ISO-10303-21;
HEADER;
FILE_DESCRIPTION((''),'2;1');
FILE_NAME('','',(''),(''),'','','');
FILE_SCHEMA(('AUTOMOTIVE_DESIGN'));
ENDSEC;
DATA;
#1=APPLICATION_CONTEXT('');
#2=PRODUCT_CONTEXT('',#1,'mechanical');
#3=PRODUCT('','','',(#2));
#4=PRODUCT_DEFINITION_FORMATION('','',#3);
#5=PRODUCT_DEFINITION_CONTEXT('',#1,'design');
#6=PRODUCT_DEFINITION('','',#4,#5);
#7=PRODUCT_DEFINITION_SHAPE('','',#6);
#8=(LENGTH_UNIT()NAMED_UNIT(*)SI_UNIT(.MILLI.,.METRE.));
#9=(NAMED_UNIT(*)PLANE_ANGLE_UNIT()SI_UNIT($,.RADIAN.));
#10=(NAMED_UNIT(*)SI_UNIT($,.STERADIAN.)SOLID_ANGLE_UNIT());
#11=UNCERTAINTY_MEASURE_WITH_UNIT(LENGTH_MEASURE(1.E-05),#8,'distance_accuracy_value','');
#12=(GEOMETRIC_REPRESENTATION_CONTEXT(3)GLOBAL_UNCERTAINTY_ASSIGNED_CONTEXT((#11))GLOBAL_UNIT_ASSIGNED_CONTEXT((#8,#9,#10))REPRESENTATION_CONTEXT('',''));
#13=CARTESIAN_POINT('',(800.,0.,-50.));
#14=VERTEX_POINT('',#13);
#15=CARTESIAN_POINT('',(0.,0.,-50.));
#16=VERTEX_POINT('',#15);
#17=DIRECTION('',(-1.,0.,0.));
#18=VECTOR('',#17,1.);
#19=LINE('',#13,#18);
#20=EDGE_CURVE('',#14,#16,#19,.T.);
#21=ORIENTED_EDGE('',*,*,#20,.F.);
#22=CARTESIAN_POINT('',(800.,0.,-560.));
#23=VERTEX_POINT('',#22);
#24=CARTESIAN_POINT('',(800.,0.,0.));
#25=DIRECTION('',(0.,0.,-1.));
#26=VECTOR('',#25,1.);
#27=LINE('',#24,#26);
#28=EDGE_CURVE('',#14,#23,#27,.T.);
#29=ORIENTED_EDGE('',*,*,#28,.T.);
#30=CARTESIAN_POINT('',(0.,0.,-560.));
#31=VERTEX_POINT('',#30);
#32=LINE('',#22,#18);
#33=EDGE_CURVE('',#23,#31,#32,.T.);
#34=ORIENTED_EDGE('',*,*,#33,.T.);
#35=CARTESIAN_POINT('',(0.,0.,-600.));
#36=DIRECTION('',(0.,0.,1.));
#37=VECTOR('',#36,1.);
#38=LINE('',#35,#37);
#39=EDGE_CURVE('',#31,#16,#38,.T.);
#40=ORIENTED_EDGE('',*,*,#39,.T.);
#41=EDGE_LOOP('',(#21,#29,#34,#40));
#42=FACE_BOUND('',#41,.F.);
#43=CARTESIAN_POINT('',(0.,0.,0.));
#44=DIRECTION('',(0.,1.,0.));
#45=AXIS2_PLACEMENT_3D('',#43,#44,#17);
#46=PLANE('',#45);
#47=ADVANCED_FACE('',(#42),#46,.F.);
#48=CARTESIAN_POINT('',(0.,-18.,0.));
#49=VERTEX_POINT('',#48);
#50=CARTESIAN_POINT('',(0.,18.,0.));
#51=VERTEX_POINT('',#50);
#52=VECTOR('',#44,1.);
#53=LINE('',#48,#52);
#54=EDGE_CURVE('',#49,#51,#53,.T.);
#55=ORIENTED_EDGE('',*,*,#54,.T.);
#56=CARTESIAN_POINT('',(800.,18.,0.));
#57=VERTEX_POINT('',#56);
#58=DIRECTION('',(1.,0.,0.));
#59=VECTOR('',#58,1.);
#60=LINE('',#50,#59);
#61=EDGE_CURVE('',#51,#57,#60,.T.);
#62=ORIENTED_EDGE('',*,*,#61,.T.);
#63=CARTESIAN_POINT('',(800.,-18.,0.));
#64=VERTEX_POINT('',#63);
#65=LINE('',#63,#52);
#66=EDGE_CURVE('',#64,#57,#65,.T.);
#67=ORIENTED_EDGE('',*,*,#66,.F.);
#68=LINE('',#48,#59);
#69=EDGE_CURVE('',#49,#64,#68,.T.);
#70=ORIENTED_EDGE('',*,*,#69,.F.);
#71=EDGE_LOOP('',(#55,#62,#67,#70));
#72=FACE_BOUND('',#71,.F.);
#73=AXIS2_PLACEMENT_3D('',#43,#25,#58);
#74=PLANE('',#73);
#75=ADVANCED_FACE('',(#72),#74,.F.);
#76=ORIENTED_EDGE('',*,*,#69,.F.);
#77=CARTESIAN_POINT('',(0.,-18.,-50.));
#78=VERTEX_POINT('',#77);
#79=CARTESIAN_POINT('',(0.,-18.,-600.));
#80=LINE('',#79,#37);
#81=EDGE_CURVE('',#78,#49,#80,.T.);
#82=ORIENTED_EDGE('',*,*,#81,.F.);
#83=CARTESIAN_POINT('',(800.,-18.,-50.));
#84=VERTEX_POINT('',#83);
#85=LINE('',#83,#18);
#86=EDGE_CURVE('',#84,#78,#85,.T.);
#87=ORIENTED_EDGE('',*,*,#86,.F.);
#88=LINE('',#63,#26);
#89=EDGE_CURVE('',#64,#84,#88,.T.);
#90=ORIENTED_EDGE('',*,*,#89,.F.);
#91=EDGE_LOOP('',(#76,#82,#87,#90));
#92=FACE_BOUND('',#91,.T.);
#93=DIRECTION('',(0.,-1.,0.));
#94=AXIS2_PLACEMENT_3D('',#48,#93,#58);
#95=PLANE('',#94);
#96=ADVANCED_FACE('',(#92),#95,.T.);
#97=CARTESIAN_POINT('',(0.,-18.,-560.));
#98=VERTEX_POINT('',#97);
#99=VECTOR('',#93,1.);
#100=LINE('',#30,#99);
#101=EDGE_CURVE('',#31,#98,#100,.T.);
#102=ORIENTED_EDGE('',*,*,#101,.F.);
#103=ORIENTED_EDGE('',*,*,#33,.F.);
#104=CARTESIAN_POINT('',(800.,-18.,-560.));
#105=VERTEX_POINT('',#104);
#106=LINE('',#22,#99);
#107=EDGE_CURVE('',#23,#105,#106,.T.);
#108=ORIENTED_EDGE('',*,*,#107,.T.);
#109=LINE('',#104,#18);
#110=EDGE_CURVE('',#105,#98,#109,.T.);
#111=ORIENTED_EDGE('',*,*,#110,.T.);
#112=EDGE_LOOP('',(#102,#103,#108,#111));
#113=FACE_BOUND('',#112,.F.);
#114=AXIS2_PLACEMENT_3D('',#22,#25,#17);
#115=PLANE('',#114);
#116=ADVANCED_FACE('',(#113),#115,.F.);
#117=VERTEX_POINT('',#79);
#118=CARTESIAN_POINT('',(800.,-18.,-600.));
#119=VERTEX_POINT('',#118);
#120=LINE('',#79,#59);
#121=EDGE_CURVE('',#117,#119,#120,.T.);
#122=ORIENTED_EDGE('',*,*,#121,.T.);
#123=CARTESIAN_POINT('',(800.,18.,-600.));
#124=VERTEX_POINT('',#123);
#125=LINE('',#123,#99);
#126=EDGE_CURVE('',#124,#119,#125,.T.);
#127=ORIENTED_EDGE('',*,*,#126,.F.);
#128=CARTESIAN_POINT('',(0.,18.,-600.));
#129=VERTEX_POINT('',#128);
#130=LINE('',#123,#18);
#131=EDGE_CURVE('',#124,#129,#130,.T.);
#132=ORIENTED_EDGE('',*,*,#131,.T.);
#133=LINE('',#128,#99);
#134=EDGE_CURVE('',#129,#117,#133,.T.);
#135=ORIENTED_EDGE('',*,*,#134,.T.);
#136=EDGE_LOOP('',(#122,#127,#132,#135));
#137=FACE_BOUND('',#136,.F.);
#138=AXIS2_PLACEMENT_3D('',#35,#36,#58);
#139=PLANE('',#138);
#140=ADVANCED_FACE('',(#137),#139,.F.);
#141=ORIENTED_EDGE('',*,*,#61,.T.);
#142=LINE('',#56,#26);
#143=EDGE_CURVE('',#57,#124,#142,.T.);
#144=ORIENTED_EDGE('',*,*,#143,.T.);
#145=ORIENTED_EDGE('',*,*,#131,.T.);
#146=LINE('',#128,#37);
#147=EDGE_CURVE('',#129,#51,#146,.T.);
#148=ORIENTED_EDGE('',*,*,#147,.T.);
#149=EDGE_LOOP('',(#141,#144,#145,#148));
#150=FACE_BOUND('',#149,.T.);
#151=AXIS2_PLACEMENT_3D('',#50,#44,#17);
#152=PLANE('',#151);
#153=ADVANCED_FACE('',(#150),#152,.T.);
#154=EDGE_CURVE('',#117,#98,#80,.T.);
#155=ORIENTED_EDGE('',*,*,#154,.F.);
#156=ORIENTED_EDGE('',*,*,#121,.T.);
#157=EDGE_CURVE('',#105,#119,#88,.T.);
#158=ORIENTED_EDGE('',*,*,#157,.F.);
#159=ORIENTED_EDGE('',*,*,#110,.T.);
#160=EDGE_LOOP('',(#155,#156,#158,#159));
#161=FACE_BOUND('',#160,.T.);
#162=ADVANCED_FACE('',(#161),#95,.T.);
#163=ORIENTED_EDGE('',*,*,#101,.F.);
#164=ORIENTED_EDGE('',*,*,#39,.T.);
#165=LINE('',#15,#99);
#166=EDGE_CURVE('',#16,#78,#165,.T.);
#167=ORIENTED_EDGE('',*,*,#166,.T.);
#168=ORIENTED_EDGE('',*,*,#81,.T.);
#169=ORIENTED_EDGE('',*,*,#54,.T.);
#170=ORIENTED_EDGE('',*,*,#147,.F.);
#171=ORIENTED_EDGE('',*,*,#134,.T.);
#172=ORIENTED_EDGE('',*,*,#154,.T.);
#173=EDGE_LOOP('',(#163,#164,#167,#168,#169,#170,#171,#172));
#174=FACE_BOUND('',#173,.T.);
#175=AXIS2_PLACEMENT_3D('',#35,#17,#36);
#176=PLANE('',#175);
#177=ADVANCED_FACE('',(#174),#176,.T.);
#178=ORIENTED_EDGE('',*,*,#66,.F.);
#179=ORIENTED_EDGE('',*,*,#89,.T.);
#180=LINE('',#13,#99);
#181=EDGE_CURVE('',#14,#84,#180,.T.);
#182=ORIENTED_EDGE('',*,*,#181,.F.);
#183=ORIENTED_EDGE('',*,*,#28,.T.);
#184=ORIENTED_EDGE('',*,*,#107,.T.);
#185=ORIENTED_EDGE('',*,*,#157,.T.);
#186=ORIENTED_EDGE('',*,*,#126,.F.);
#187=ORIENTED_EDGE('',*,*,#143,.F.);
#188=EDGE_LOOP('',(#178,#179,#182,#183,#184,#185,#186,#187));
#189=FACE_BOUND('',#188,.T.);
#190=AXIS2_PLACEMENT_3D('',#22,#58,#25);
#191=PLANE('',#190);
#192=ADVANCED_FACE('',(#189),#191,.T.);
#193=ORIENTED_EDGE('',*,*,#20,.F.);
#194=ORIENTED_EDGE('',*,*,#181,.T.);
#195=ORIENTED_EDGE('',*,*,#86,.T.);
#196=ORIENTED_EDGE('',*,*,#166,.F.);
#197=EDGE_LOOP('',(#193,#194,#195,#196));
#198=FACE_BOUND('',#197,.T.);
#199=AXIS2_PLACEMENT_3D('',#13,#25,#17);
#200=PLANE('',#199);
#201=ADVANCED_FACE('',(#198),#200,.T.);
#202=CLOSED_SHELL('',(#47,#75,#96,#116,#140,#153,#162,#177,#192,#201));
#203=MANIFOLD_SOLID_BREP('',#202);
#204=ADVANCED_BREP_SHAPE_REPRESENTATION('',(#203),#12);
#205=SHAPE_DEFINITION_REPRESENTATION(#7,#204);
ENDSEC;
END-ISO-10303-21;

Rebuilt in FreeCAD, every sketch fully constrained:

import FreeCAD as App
import Part
import Sketcher

V = App.Vector


def add_polygon(sketch, points):
    """Adds a closed chain of lines whose ends are joined by coincident constraints."""
    first, n = sketch.GeometryCount, len(points)
    for a, b in zip(points, points[1:] + points[:1]):
        sketch.addGeometry(Part.LineSegment(App.Vector(*a, 0), App.Vector(*b, 0)), False)
    for i in range(n):
        sketch.addConstraint(Sketcher.Constraint("Coincident", first + i, 2, first + (i + 1) % n, 1))

doc = App.newDocument("Part")
body = doc.addObject("PartDesign::Body", "Body")

sketch1 = body.newObject("Sketcher::SketchObject", "Sketch")
sketch1.AttachmentSupport = (doc.getObject("XZ_Plane"), [""])
sketch1.MapMode = "FlatFace"
add_polygon(sketch1, [(0, -600), (0, 0), (800, 0), (800, -600)])
sketch1.addConstraint(Sketcher.Constraint("Vertical", 0))
sketch1.addConstraint(Sketcher.Constraint("Horizontal", 1))
sketch1.addConstraint(Sketcher.Constraint("Vertical", 2))
sketch1.addConstraint(Sketcher.Constraint("Horizontal", 3))
sketch1.addConstraint(Sketcher.Constraint("Coincident", 0, 2, -1, 1))
sketch1.addConstraint(Sketcher.Constraint("DistanceX", 1, 1, 1, 2, 800.0))
sketch1.addConstraint(Sketcher.Constraint("DistanceY", 0, 1, 0, 2, 600.0))
pad1 = body.newObject("PartDesign::Pad", "Pad")
pad1.Profile = sketch1
pad1.Length = 18
pad1.Reversed = True

sketch2 = body.newObject("Sketcher::SketchObject", "Sketch001")
sketch2.AttachmentSupport = (doc.getObject("XZ_Plane"), [""])
sketch2.MapMode = "FlatFace"
add_polygon(sketch2, [(0, 0), (0, -50), (800, -50), (800, 0)])
sketch2.addConstraint(Sketcher.Constraint("Vertical", 0))
sketch2.addConstraint(Sketcher.Constraint("Horizontal", 1))
sketch2.addConstraint(Sketcher.Constraint("Vertical", 2))
sketch2.addConstraint(Sketcher.Constraint("Horizontal", 3))
sketch2.addConstraint(Sketcher.Constraint("Coincident", 3, 2, -1, 1))
sketch2.addConstraint(Sketcher.Constraint("DistanceY", 0, 2, 0, 1, 50.0))
sketch2.addConstraint(Sketcher.Constraint("DistanceX", 1, 1, 1, 2, 800.0))
pad2 = body.newObject("PartDesign::Pad", "Pad001")
pad2.Profile = sketch2
pad2.Length = 18

sketch3 = body.newObject("Sketcher::SketchObject", "Sketch002")
sketch3.AttachmentSupport = (doc.getObject("XZ_Plane"), [""])
sketch3.MapMode = "FlatFace"
add_polygon(sketch3, [(0, -560), (0, -600), (800, -600), (800, -560)])
sketch3.addConstraint(Sketcher.Constraint("Vertical", 0))
sketch3.addConstraint(Sketcher.Constraint("Horizontal", 1))
sketch3.addConstraint(Sketcher.Constraint("Vertical", 2))
sketch3.addConstraint(Sketcher.Constraint("Horizontal", 3))
sketch3.addConstraint(Sketcher.Constraint("PointOnObject", 0, 2, -2))
sketch3.addConstraint(Sketcher.Constraint("DistanceY", 0, 2, 0, 1, 40.0))
sketch3.addConstraint(Sketcher.Constraint("DistanceX", 1, 1, 1, 2, 800.0))
sketch3.addConstraint(Sketcher.Constraint("DistanceY", 0, 2, -1, 1, 600.0))
pad3 = body.newObject("PartDesign::Pad", "Pad002")
pad3.Profile = sketch3
pad3.Length = 18

doc.recompute()
